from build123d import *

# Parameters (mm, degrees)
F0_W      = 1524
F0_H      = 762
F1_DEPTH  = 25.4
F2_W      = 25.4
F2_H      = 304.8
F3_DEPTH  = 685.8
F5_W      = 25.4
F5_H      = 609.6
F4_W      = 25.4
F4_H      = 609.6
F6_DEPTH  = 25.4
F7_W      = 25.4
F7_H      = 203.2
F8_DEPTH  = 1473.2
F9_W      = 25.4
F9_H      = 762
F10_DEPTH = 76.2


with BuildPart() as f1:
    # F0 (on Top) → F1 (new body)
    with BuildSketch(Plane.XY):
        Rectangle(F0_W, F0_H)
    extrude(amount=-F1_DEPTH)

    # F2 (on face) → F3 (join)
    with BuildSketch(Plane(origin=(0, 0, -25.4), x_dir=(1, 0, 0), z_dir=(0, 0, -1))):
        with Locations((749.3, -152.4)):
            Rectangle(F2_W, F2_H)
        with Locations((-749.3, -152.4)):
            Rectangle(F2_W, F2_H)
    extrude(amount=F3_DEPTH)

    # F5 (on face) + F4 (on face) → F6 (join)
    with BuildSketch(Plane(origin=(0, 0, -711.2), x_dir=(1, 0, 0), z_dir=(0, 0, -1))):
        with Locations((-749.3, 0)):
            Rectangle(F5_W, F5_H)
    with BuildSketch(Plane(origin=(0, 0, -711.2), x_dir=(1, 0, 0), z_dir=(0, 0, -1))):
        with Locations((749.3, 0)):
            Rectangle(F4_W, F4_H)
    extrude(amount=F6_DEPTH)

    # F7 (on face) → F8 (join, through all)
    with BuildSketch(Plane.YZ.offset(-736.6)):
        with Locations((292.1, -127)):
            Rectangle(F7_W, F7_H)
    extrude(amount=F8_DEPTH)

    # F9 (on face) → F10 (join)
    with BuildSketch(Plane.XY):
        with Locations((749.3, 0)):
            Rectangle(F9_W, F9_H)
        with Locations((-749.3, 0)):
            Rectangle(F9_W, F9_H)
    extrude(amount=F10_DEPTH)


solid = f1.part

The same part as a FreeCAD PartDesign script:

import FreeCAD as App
import Part
import Sketcher
Q = App.Units.Quantity

doc = App.newDocument("Part")
body = doc.addObject("PartDesign::Body", "Body")

# Sketch on XY plane
sketch1 = body.newObject("Sketcher::SketchObject", "Sketch")
sketch1.AttachmentSupport = (doc.getObject("XY_Plane"), [""])
sketch1.MapMode = "FlatFace"
sketch1.addGeometry(Part.LineSegment(App.Vector(-762, 381, 0), App.Vector(-762, -381, 0)), False)
sketch1.addGeometry(Part.LineSegment(App.Vector(-762, -381, 0), App.Vector(762, -381, 0)), False)
sketch1.addGeometry(Part.LineSegment(App.Vector(762, -381, 0), App.Vector(762, 381, 0)), False)
sketch1.addGeometry(Part.LineSegment(App.Vector(762, 381, 0), App.Vector(-762, 381, 0)), False)
sketch1.addConstraint(Sketcher.Constraint("Coincident", 0, 2, 1, 1))
sketch1.addConstraint(Sketcher.Constraint("Coincident", 1, 2, 2, 1))
sketch1.addConstraint(Sketcher.Constraint("Coincident", 2, 2, 3, 1))
sketch1.addConstraint(Sketcher.Constraint("Coincident", 3, 2, 0, 1))
sketch1.addConstraint(Sketcher.Constraint("Vertical", 0))
sketch1.addConstraint(Sketcher.Constraint("Horizontal", 1))
sketch1.addConstraint(Sketcher.Constraint("Vertical", 2))
sketch1.addConstraint(Sketcher.Constraint("Horizontal", 3))
sketch1.addConstraint(Sketcher.Constraint("Symmetric", 0, 2, 2, 2, -1, 1))
sketch1.addConstraint(Sketcher.Constraint("DistanceX", 1, 1, 1, 2, Q("60 in")))
sketch1.addConstraint(Sketcher.Constraint("DistanceY", 0, 2, 0, 1, Q("30 in")))
pad1 = body.newObject("PartDesign::Pad", "Pad")
pad1.Profile = sketch1
pad1.Length = Q("1 in")
pad1.Reversed = True

# Sketch on XY plane
sketch2 = body.newObject("Sketcher::SketchObject", "Sketch001")
sketch2.AttachmentSupport = (doc.getObject("XY_Plane"), [""])
sketch2.MapMode = "FlatFace"
sketch2.AttachmentOffset = App.Placement(App.Vector(0, 0, -1 * 25.4), App.Rotation())
sketch2.addGeometry(Part.LineSegment(App.Vector(737, 0, 0), App.Vector(737, 305, 0)), False)
sketch2.addGeometry(Part.LineSegment(App.Vector(737, 305, 0), App.Vector(762, 305, 0)), False)
sketch2.addGeometry(Part.LineSegment(App.Vector(762, 305, 0), App.Vector(762, 0, 0)), False)
sketch2.addGeometry(Part.LineSegment(App.Vector(762, 0, 0), App.Vector(737, 0, 0)), False)
sketch2.addGeometry(Part.LineSegment(App.Vector(-762, 0, 0), App.Vector(-762, 305, 0)), False)
sketch2.addGeometry(Part.LineSegment(App.Vector(-762, 305, 0), App.Vector(-737, 305, 0)), False)
sketch2.addGeometry(Part.LineSegment(App.Vector(-737, 305, 0), App.Vector(-737, 0, 0)), False)
sketch2.addGeometry(Part.LineSegment(App.Vector(-737, 0, 0), App.Vector(-762, 0, 0)), False)
sketch2.addConstraint(Sketcher.Constraint("Coincident", 0, 2, 1, 1))
sketch2.addConstraint(Sketcher.Constraint("Coincident", 1, 2, 2, 1))
sketch2.addConstraint(Sketcher.Constraint("Coincident", 2, 2, 3, 1))
sketch2.addConstraint(Sketcher.Constraint("Coincident", 3, 2, 0, 1))
sketch2.addConstraint(Sketcher.Constraint("Coincident", 4, 2, 5, 1))
sketch2.addConstraint(Sketcher.Constraint("Coincident", 5, 2, 6, 1))
sketch2.addConstraint(Sketcher.Constraint("Coincident", 6, 2, 7, 1))
sketch2.addConstraint(Sketcher.Constraint("Coincident", 7, 2, 4, 1))
sketch2.addConstraint(Sketcher.Constraint("Vertical", 0))
sketch2.addConstraint(Sketcher.Constraint("Horizontal", 1))
sketch2.addConstraint(Sketcher.Constraint("Vertical", 2))
sketch2.addConstraint(Sketcher.Constraint("Horizontal", 3))
sketch2.addConstraint(Sketcher.Constraint("Vertical", 4))
sketch2.addConstraint(Sketcher.Constraint("Horizontal", 5))
sketch2.addConstraint(Sketcher.Constraint("Vertical", 6))
sketch2.addConstraint(Sketcher.Constraint("Horizontal", 7))
sketch2.addConstraint(Sketcher.Constraint("Symmetric", 3, 2, 6, 2, -1, 1))
sketch2.addConstraint(Sketcher.Constraint("Symmetric", 1, 2, 4, 2, -2))
sketch2.addConstraint(Sketcher.Constraint("PointOnObject", 2, 2, -1))
sketch2.addConstraint(Sketcher.Constraint("DistanceX", 1, 1, 1, 2, Q("1 in")))
sketch2.addConstraint(Sketcher.Constraint("DistanceY", 0, 1, 0, 2, Q("12 in")))
sketch2.addConstraint(Sketcher.Constraint("DistanceX", -1, 1, 0, 2, Q("29 in")))
pad2 = body.newObject("PartDesign::Pad", "Pad001")
pad2.Profile = sketch2
pad2.Length = Q("27 in")
pad2.Reversed = True

# Sketch on XY plane
sketch3 = body.newObject("Sketcher::SketchObject", "Sketch002")
sketch3.AttachmentSupport = (doc.getObject("XY_Plane"), [""])
sketch3.MapMode = "FlatFace"
sketch3.AttachmentOffset = App.Placement(App.Vector(0, 0, -28 * 25.4), App.Rotation())
sketch3.addGeometry(Part.LineSegment(App.Vector(-762, -305, 0), App.Vector(-762, 305, 0)), False)
sketch3.addGeometry(Part.LineSegment(App.Vector(-762, 305, 0), App.Vector(-737, 305, 0)), False)
sketch3.addGeometry(Part.LineSegment(App.Vector(-737, 305, 0), App.Vector(-737, -305, 0)), False)
sketch3.addGeometry(Part.LineSegment(App.Vector(-737, -305, 0), App.Vector(-762, -305, 0)), False)
sketch3.addGeometry(Part.LineSegment(App.Vector(737, -305, 0), App.Vector(737, 305, 0)), False)
sketch3.addGeometry(Part.LineSegment(App.Vector(737, 305, 0), App.Vector(762, 305, 0)), False)
sketch3.addGeometry(Part.LineSegment(App.Vector(762, 305, 0), App.Vector(762, -305, 0)), False)
sketch3.addGeometry(Part.LineSegment(App.Vector(762, -305, 0), App.Vector(737, -305, 0)), False)
sketch3.addConstraint(Sketcher.Constraint("Coincident", 0, 2, 1, 1))
sketch3.addConstraint(Sketcher.Constraint("Coincident", 1, 2, 2, 1))
sketch3.addConstraint(Sketcher.Constraint("Coincident", 2, 2, 3, 1))
sketch3.addConstraint(Sketcher.Constraint("Coincident", 3, 2, 0, 1))
sketch3.addConstraint(Sketcher.Constraint("Coincident", 4, 2, 5, 1))
sketch3.addConstraint(Sketcher.Constraint("Coincident", 5, 2, 6, 1))
sketch3.addConstraint(Sketcher.Constraint("Coincident", 6, 2, 7, 1))
sketch3.addConstraint(Sketcher.Constraint("Coincident", 7, 2, 4, 1))
sketch3.addConstraint(Sketcher.Constraint("Vertical", 0))
sketch3.addConstraint(Sketcher.Constraint("Horizontal", 1))
sketch3.addConstraint(Sketcher.Constraint("Vertical", 2))
sketch3.addConstraint(Sketcher.Constraint("Horizontal", 3))
sketch3.addConstraint(Sketcher.Constraint("Vertical", 4))
sketch3.addConstraint(Sketcher.Constraint("Horizontal", 5))
sketch3.addConstraint(Sketcher.Constraint("Vertical", 6))
sketch3.addConstraint(Sketcher.Constraint("Horizontal", 7))
sketch3.addConstraint(Sketcher.Constraint("Symmetric", 2, 2, 4, 2, -1, 1))
sketch3.addConstraint(Sketcher.Constraint("Symmetric", 0, 2, 6, 2, -1, 1))
sketch3.addConstraint(Sketcher.Constraint("Horizontal", 1, 2, 4, 2))
sketch3.addConstraint(Sketcher.Constraint("DistanceX", 1, 1, 1, 2, Q("1 in")))
sketch3.addConstraint(Sketcher.Constraint("DistanceY", 0, 1, 0, 2, Q("24 in")))
sketch3.addConstraint(Sketcher.Constraint("DistanceX", 0, 2, -1, 1, Q("30 in")))
pad3 = body.newObject("PartDesign::Pad", "Pad002")
pad3.Profile = sketch3
pad3.Length = Q("1 in")
pad3.Reversed = True

# Sketch on YZ plane
sketch4 = body.newObject("Sketcher::SketchObject", "Sketch003")
sketch4.AttachmentSupport = (doc.getObject("YZ_Plane"), [""])
sketch4.MapMode = "FlatFace"
sketch4.AttachmentOffset = App.Placement(App.Vector(0, 0, -29 * 25.4), App.Rotation())
sketch4.addGeometry(Part.LineSegment(App.Vector(279, -25, 0), App.Vector(279, -229, 0)), False)
sketch4.addGeometry(Part.LineSegment(App.Vector(279, -229, 0), App.Vector(305, -229, 0)), False)
sketch4.addGeometry(Part.LineSegment(App.Vector(305, -229, 0), App.Vector(305, -25, 0)), False)
sketch4.addGeometry(Part.LineSegment(App.Vector(305, -25, 0), App.Vector(279, -25, 0)), False)
sketch4.addConstraint(Sketcher.Constraint("Coincident", 0, 2, 1, 1))
sketch4.addConstraint(Sketcher.Constraint("Coincident", 1, 2, 2, 1))
sketch4.addConstraint(Sketcher.Constraint("Coincident", 2, 2, 3, 1))
sketch4.addConstraint(Sketcher.Constraint("Coincident", 3, 2, 0, 1))
sketch4.addConstraint(Sketcher.Constraint("Vertical", 0))
sketch4.addConstraint(Sketcher.Constraint("Horizontal", 1))
sketch4.addConstraint(Sketcher.Constraint("Vertical", 2))
sketch4.addConstraint(Sketcher.Constraint("Horizontal", 3))
sketch4.addConstraint(Sketcher.Constraint("DistanceX", 1, 1, 1, 2, Q("1 in")))
sketch4.addConstraint(Sketcher.Constraint("DistanceY", 0, 2, 0, 1, Q("8 in")))
sketch4.addConstraint(Sketcher.Constraint("DistanceX", -1, 1, 0, 2, Q("11 in")))
sketch4.addConstraint(Sketcher.Constraint("DistanceY", 0, 2, -1, 1, Q("9 in")))
pad4 = body.newObject("PartDesign::Pad", "Pad003")
pad4.Profile = sketch4
pad4.Type = "UpToLast"

# Sketch on XY plane
sketch5 = body.newObject("Sketcher::SketchObject", "Sketch004")
sketch5.AttachmentSupport = (doc.getObject("XY_Plane"), [""])
sketch5.MapMode = "FlatFace"
sketch5.addGeometry(Part.LineSegment(App.Vector(737, 381, 0), App.Vector(737, -381, 0)), False)
sketch5.addGeometry(Part.LineSegment(App.Vector(737, -381, 0), App.Vector(762, -381, 0)), False)
sketch5.addGeometry(Part.LineSegment(App.Vector(762, -381, 0), App.Vector(762, 381, 0)), False)
sketch5.addGeometry(Part.LineSegment(App.Vector(762, 381, 0), App.Vector(737, 381, 0)), False)
sketch5.addGeometry(Part.LineSegment(App.Vector(-762, 381, 0), App.Vector(-762, -381, 0)), False)
sketch5.addGeometry(Part.LineSegment(App.Vector(-762, -381, 0), App.Vector(-737, -381, 0)), False)
sketch5.addGeometry(Part.LineSegment(App.Vector(-737, -381, 0), App.Vector(-737, 381, 0)), False)
sketch5.addGeometry(Part.LineSegment(App.Vector(-737, 381, 0), App.Vector(-762, 381, 0)), False)
sketch5.addConstraint(Sketcher.Constraint("Coincident", 0, 2, 1, 1))
sketch5.addConstraint(Sketcher.Constraint("Coincident", 1, 2, 2, 1))
sketch5.addConstraint(Sketcher.Constraint("Coincident", 2, 2, 3, 1))
sketch5.addConstraint(Sketcher.Constraint("Coincident", 3, 2, 0, 1))
sketch5.addConstraint(Sketcher.Constraint("Coincident", 4, 2, 5, 1))
sketch5.addConstraint(Sketcher.Constraint("Coincident", 5, 2, 6, 1))
sketch5.addConstraint(Sketcher.Constraint("Coincident", 6, 2, 7, 1))
sketch5.addConstraint(Sketcher.Constraint("Coincident", 7, 2, 4, 1))
sketch5.addConstraint(Sketcher.Constraint("Vertical", 0))
sketch5.addConstraint(Sketcher.Constraint("Horizontal", 1))
sketch5.addConstraint(Sketcher.Constraint("Vertical", 2))
sketch5.addConstraint(Sketcher.Constraint("Horizontal", 3))
sketch5.addConstraint(Sketcher.Constraint("Vertical", 4))
sketch5.addConstraint(Sketcher.Constraint("Horizontal", 5))
sketch5.addConstraint(Sketcher.Constraint("Vertical", 6))
sketch5.addConstraint(Sketcher.Constraint("Horizontal", 7))
sketch5.addConstraint(Sketcher.Constraint("Symmetric", 2, 2, 4, 2, -1, 1))
sketch5.addConstraint(Sketcher.Constraint("Symmetric", 0, 2, 6, 2, -1, 1))
sketch5.addConstraint(Sketcher.Constraint("Horizontal", 1, 2, 4, 2))
sketch5.addConstraint(Sketcher.Constraint("DistanceX", 1, 1, 1, 2, Q("1 in")))
sketch5.addConstraint(Sketcher.Constraint("DistanceY", 0, 2, 0, 1, Q("30 in")))
sketch5.addConstraint(Sketcher.Constraint("DistanceX", -1, 1, 0, 2, Q("29 in")))
pad5 = body.newObject("PartDesign::Pad", "Pad004")
pad5.Profile = sketch5
pad5.Length = Q("3 in")

doc.recompute()
